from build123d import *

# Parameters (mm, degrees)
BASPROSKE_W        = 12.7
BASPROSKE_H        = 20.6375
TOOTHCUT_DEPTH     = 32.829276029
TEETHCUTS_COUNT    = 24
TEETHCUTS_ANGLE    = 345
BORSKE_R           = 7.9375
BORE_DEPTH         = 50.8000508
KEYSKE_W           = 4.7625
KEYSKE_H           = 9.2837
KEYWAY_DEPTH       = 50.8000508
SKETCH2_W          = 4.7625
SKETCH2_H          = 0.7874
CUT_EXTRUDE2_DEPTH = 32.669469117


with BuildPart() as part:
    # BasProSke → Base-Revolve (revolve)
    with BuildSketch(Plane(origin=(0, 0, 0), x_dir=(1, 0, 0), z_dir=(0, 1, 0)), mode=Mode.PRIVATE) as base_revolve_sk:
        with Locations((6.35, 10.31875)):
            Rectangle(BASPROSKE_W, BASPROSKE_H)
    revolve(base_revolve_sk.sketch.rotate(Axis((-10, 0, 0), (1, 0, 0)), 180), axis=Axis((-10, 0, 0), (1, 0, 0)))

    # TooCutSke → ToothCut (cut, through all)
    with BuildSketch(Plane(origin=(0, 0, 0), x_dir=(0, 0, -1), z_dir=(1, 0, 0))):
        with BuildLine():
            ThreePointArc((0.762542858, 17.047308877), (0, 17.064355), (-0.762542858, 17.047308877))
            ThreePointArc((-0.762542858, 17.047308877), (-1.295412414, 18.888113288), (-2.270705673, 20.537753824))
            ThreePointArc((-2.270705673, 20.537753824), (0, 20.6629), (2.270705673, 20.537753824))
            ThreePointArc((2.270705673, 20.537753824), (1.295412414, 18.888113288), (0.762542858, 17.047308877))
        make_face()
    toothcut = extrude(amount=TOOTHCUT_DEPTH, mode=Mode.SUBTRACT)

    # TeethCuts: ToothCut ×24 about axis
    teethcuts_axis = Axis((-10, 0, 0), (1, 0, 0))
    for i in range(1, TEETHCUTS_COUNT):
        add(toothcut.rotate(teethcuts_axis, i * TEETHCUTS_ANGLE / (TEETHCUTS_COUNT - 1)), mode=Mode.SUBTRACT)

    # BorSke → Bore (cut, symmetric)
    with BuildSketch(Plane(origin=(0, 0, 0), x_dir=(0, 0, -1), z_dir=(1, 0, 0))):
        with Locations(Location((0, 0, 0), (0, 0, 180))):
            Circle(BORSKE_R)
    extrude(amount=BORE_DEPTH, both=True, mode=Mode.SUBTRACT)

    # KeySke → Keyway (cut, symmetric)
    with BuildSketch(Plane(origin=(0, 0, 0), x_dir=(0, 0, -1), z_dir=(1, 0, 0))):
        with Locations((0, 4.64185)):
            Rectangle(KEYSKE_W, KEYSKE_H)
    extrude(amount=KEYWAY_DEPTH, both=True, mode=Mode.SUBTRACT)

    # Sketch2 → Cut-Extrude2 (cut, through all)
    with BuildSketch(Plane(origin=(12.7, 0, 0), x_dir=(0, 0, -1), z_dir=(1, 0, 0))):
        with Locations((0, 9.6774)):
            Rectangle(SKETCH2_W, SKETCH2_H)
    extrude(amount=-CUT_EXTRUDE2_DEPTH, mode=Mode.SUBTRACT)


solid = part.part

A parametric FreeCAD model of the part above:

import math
import FreeCAD as App
import Part
import Sketcher
from FreeCAD import Vector
Q = App.Units.Quantity


def add_polygon(sketch, points):
    """Adds a closed chain of lines whose ends are joined by coincident constraints."""
    first, n = sketch.GeometryCount, len(points)
    for a, b in zip(points, points[1:] + points[:1]):
        sketch.addGeometry(Part.LineSegment(App.Vector(*a, 0), App.Vector(*b, 0)), False)
    for i in range(n):
        sketch.addConstraint(Sketcher.Constraint("Coincident", first + i, 2, first + (i + 1) % n, 1))

doc = App.newDocument("Part")
body = doc.addObject("PartDesign::Body", "Body")

# Sketch on XZ plane
sketch1 = body.newObject("Sketcher::SketchObject", "Sketch")
sketch1.AttachmentSupport = (doc.getObject("XZ_Plane"), [""])
sketch1.MapMode = "FlatFace"
add_polygon(sketch1, [(0, -21), (0, 0), (13, 0), (13, -21)])  # lines 0-3
sketch1.addConstraint([
    Sketcher.Constraint("Vertical", 0),
    Sketcher.Constraint("Horizontal", 1),
    Sketcher.Constraint("Vertical", 2),
    Sketcher.Constraint("Horizontal", 3),
    Sketcher.Constraint("Coincident", 0, 2, -1, 1),
    Sketcher.Constraint("DistanceX", 1, 1, 1, 2, Q("0.5 in")),
    Sketcher.Constraint("DistanceY", 0, 1, 0, 2, Q("0.8125 in")),
])
revolution = body.newObject("PartDesign::Revolution", "Revolution")
revolution.Profile = sketch1
revolution.ReferenceAxis = (sketch1, ["H_Axis"])
revolution.Angle = 360

# Sketch on YZ plane
sketch2 = body.newObject("Sketcher::SketchObject", "Sketch001")
sketch2.AttachmentSupport = (doc.getObject("YZ_Plane"), [""])
sketch2.MapMode = "FlatFace"
sketch2.addGeometry([
    Part.ArcOfCircle(Part.Circle(Vector(0, 0, 0), Vector(0, 0, 1), 17.1), math.radians(-2.56), math.radians(2.56)),
    Part.ArcOfCircle(Part.Circle(Vector(15.9, -8.3, 0), Vector(0, 0, 1), 7.6), math.radians(52), math.radians(81)),
    Part.ArcOfCircle(Part.Circle(Vector(0, 0, 0), Vector(0, 0, 1), 20.7), math.radians(-6.31), math.radians(6.31)),
    Part.ArcOfCircle(Part.Circle(Vector(15.9, 8.3, 0), Vector(0, 0, 1), 7.6), math.radians(-81), math.radians(-52)),
], False)
sketch2.addConstraint([
    Sketcher.Constraint("Coincident", 0, 1, 1, 2),
    Sketcher.Constraint("Coincident", 1, 1, 2, 1),
    Sketcher.Constraint("Coincident", 2, 2, 3, 2),
    Sketcher.Constraint("Coincident", 3, 1, 0, 2),
    Sketcher.Constraint("Coincident", 0, 3, -1, 1),
    Sketcher.Constraint("Coincident", 2, 3, -1, 1),
    Sketcher.Constraint("Equal", 1, 3),
    Sketcher.Constraint("Symmetric", 1, 3, 3, 3, -1),
    Sketcher.Constraint("Radius", 1, Q("0.3 in")),
    Sketcher.Constraint("Radius", 2, Q("0.8135 in")),
    Sketcher.Constraint("Radius", 0, 17.064355),
    Sketcher.Constraint("DistanceX", 1, 3, 0, 1, 1.181601),
    Sketcher.Constraint("DistanceX", -1, 1, 1, 3, 15.865708),
])
pocket1 = body.newObject("PartDesign::Pocket", "Pocket")
pocket1.Profile = sketch2
pocket1.Type = "ThroughAll"
pocket1.Reversed = True
doc.recompute()

polarpattern = body.newObject("PartDesign::PolarPattern", "PolarPattern")
polarpattern.Originals = [pocket1]
polarpattern.Axis = (doc.getObject("X_Axis"), [""])
polarpattern.Angle = 360
polarpattern.Occurrences = 24
body.Tip = polarpattern

# Sketch on YZ plane
sketch3 = body.newObject("Sketcher::SketchObject", "Sketch002")
sketch3.AttachmentSupport = (doc.getObject("YZ_Plane"), [""])
sketch3.MapMode = "FlatFace"
sketch3.addGeometry(Part.Circle(Vector(0, 0, 0), Vector(0, 0, 1), 8), False)
sketch3.addConstraint([
    Sketcher.Constraint("Coincident", 0, 3, -1, 1),
    Sketcher.Constraint("Diameter", 0, Q("0.625 in")),
])
pocket2 = body.newObject("PartDesign::Pocket", "Pocket001")
pocket2.Profile = sketch3
pocket2.Length = 101.600102
pocket2.Midplane = True

# Sketch on YZ plane
sketch4 = body.newObject("Sketcher::SketchObject", "Sketch003")
sketch4.AttachmentSupport = (doc.getObject("YZ_Plane"), [""])
sketch4.MapMode = "FlatFace"
add_polygon(sketch4, [(9.3, 2.4), (0, 2.4), (0, -2.4), (9.3, -2.4)])  # lines 0-3
sketch4.addConstraint([
    Sketcher.Constraint("Horizontal", 0),
    Sketcher.Constraint("Vertical", 1),
    Sketcher.Constraint("Horizontal", 2),
    Sketcher.Constraint("Vertical", 3),
    Sketcher.Constraint("Symmetric", 0, 2, 1, 2, -1, 1),
    Sketcher.Constraint("DistanceY", 1, 2, 1, 1, Q("0.1875 in")),
    Sketcher.Constraint("DistanceX", 0, 2, 0, 1, Q("0.3655 in")),
])
pocket3 = body.newObject("PartDesign::Pocket", "Pocket002")
pocket3.Profile = sketch4
pocket3.Length = 101.600102
pocket3.Midplane = True

# Sketch on YZ plane
sketch5 = body.newObject("Sketcher::SketchObject", "Sketch004")
sketch5.AttachmentSupport = (doc.getObject("YZ_Plane"), [""])
sketch5.MapMode = "FlatFace"
sketch5.AttachmentOffset = App.Placement(Vector(0, 0, 0.5 * 25.4), App.Rotation())
add_polygon(sketch5, [(10.1, 2.4), (9.3, 2.4), (9.3, -2.4), (10.1, -2.4)])  # lines 0-3
sketch5.addConstraint([
    Sketcher.Constraint("Horizontal", 0),
    Sketcher.Constraint("Vertical", 1),
    Sketcher.Constraint("Horizontal", 2),
    Sketcher.Constraint("Vertical", 3),
    Sketcher.Constraint("DistanceX", 0, 2, 0, 1, Q("0.031 in")),
    Sketcher.Constraint("DistanceY", 1, 2, 1, 1, Q("0.1875 in")),
    Sketcher.Constraint("DistanceY", -1, 1, 0, 2, Q("0.09375 in")),
    Sketcher.Constraint("DistanceX", -1, 1, 0, 2, Q("0.3655 in")),
])
pocket4 = body.newObject("PartDesign::Pocket", "Pocket003")
pocket4.Profile = sketch5
pocket4.Type = "ThroughAll"

doc.recompute()
